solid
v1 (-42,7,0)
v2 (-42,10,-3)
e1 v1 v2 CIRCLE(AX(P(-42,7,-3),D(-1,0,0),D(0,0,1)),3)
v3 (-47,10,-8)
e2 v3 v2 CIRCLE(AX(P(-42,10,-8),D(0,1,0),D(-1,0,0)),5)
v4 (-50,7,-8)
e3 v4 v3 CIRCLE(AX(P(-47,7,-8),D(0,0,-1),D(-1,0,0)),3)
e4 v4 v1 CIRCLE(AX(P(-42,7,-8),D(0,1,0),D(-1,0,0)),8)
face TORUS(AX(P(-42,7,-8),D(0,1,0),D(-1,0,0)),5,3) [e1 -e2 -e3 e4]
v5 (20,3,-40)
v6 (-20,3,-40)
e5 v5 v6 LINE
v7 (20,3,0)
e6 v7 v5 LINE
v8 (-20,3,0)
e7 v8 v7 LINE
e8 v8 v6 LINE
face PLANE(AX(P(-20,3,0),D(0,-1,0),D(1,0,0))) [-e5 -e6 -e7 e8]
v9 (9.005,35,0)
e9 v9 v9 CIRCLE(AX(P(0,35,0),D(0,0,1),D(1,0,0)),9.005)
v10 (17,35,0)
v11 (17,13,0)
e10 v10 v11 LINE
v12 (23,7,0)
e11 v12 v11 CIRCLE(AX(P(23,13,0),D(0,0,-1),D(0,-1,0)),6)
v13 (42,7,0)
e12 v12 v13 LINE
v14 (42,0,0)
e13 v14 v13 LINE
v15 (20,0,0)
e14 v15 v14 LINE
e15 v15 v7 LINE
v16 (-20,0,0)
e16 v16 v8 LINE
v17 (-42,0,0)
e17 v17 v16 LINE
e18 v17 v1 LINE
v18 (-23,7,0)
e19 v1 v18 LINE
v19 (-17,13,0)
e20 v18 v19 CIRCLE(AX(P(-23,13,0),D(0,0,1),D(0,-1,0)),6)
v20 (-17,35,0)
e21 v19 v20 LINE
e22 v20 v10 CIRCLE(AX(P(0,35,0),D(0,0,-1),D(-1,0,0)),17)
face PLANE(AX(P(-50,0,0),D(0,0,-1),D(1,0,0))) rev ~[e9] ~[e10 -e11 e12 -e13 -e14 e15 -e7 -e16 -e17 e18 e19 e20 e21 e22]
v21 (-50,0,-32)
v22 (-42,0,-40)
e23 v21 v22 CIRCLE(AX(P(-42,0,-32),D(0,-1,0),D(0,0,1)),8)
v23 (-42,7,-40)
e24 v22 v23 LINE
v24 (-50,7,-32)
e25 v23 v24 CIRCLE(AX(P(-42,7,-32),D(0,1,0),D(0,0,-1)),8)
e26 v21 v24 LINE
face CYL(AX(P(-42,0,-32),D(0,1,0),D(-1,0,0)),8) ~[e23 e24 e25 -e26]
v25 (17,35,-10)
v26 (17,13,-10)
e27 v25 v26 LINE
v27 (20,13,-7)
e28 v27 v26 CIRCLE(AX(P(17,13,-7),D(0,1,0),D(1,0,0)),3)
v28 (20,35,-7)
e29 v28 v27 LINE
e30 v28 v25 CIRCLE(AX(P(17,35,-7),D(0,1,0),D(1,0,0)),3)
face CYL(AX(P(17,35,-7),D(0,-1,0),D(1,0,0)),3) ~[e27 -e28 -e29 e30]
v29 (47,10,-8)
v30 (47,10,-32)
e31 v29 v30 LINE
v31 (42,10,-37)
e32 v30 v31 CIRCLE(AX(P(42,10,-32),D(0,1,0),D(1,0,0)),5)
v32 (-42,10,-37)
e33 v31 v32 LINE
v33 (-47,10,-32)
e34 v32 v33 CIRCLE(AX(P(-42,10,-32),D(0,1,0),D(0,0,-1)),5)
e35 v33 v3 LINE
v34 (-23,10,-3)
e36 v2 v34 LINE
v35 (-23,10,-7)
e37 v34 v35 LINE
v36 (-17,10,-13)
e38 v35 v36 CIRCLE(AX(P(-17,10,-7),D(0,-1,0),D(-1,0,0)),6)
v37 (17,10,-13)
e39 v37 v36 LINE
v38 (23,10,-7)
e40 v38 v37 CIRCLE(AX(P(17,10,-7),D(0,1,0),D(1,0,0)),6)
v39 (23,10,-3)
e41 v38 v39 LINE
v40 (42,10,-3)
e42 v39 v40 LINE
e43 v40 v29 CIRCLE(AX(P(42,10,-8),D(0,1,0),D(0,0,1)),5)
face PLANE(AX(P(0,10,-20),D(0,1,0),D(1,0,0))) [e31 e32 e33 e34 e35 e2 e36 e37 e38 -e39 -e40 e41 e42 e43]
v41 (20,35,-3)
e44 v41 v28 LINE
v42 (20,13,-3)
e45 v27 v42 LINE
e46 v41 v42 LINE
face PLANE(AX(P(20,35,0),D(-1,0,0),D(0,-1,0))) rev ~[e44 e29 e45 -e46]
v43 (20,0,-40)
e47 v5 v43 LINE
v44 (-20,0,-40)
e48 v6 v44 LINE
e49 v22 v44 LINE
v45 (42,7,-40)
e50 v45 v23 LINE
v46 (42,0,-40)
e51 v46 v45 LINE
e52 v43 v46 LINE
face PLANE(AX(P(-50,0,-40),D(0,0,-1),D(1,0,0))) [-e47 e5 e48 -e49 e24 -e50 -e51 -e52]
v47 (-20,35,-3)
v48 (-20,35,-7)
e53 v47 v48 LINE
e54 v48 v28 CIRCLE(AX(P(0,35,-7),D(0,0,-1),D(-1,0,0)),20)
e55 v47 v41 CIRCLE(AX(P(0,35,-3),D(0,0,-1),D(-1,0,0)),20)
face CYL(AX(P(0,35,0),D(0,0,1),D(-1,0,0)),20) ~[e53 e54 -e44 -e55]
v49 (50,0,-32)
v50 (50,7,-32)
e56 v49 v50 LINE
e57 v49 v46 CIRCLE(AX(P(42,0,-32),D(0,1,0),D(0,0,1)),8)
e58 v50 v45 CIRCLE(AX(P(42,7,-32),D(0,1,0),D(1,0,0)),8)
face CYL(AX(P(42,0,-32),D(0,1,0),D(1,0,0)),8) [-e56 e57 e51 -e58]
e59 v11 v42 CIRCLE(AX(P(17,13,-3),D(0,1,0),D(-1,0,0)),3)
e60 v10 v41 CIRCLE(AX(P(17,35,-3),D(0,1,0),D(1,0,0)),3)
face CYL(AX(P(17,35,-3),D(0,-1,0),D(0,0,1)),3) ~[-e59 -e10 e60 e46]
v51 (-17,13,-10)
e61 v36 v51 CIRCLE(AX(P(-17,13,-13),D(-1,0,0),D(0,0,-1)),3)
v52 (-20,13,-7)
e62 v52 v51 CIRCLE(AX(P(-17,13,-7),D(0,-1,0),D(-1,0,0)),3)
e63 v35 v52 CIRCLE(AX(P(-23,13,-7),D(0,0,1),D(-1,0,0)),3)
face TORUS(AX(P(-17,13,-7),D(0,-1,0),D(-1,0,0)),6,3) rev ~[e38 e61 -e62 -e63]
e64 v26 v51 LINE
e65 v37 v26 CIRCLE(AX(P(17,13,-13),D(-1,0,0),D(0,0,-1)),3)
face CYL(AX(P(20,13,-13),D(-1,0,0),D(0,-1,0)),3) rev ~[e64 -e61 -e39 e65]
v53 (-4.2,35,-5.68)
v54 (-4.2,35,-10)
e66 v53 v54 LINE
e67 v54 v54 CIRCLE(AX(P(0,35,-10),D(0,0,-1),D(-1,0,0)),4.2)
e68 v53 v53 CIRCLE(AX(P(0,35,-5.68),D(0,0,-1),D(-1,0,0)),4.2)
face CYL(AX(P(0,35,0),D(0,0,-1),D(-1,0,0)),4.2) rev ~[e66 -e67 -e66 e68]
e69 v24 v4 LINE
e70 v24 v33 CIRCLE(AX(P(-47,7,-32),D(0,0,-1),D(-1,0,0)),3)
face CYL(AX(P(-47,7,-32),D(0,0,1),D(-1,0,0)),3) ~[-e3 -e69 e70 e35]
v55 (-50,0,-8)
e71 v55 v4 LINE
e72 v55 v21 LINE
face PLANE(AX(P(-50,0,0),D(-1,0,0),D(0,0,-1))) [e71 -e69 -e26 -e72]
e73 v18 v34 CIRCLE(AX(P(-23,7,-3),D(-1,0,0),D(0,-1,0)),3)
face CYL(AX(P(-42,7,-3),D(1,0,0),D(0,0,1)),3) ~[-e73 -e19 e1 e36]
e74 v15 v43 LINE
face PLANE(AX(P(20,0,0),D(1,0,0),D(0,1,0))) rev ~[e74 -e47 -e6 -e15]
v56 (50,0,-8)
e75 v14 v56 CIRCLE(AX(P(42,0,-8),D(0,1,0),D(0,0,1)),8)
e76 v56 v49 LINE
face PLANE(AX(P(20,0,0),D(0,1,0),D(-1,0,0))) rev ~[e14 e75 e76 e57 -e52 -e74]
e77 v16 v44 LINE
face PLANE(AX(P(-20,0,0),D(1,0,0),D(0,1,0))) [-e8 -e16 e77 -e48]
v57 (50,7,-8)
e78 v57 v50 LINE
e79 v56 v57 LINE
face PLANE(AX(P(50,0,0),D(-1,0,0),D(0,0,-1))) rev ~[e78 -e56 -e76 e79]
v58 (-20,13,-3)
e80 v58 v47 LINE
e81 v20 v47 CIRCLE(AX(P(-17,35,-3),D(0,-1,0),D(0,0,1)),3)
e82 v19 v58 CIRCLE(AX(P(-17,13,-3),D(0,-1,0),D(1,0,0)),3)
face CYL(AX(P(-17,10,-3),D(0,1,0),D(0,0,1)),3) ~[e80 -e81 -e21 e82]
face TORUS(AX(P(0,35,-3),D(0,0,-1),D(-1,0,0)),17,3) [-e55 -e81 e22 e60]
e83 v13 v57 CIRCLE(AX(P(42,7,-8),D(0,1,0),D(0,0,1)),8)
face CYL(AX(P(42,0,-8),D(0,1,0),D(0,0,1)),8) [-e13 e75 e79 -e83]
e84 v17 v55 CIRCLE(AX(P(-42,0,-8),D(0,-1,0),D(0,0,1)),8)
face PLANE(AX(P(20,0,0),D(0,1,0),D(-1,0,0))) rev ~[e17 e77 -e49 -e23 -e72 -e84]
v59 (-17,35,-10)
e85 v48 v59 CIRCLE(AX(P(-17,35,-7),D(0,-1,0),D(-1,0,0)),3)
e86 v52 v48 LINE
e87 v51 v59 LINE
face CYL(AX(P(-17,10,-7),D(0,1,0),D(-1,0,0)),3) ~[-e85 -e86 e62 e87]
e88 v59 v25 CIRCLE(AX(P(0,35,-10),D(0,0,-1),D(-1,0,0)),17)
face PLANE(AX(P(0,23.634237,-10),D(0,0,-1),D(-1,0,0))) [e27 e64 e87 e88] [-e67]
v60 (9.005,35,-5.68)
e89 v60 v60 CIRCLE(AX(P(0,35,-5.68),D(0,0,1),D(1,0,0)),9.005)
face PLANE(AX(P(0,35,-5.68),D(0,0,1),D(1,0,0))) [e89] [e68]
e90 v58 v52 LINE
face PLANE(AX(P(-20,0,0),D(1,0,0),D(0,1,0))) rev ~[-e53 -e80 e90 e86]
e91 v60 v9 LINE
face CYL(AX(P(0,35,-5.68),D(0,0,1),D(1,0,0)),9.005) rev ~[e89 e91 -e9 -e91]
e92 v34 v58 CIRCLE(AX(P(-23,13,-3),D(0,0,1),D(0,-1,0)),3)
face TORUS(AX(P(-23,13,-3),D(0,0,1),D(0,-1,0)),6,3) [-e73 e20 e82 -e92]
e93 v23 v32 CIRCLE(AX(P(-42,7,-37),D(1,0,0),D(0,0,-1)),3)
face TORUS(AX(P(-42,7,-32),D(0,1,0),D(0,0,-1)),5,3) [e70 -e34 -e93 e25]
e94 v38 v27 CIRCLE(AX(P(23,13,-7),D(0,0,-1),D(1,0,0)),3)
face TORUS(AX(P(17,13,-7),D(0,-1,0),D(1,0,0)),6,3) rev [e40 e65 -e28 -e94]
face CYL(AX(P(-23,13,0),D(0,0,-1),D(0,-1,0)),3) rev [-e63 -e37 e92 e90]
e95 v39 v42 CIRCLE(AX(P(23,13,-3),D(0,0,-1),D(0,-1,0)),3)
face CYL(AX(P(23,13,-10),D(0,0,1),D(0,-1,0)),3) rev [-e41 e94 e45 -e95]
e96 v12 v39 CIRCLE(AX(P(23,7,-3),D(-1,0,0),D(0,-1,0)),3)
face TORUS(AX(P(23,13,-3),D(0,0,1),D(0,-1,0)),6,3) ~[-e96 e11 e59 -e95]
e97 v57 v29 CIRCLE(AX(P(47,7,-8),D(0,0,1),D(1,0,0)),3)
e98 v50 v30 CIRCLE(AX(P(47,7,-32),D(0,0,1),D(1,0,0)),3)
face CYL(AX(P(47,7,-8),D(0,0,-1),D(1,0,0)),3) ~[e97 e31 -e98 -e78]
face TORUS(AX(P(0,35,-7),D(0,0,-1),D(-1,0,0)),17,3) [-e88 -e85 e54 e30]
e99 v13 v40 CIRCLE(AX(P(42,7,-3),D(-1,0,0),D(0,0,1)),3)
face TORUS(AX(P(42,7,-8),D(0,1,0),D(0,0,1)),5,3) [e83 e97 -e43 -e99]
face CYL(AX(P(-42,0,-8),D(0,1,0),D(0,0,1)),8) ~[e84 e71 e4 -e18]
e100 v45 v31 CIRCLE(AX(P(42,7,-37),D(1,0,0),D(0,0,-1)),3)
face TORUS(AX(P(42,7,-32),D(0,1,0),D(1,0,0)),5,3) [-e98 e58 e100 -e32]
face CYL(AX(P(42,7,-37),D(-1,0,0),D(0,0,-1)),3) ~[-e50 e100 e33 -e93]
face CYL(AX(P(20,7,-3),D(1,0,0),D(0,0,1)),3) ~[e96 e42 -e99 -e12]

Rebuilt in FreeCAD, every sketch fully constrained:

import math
import FreeCAD as App
import Part
import Sketcher

V = App.Vector


def edges_at(feature, points):
    """Names of the edges that pass closest to the given points."""
    edges = feature.Shape.Edges
    near = lambda p: min(range(len(edges)), key=lambda i: edges[i].distToShape(Part.Vertex(*p))[0])
    return sorted({f"Edge{near(p) + 1}" for p in points})

doc = App.newDocument("Part")
params = doc.addObject("Spreadsheet::Sheet", "Params")
for row, (alias, value) in enumerate([
    ("sketch1_width", "100 mm"),
    ("sketch1_height", "40 mm"),
    ("pad1_length", "10 mm"),
    ("sketch2_radius", "20 mm"),
    ("sketch2_height", "35 mm"),
    ("pad2_length", "10 mm"),
    ("sketch3_width", "40 mm"),
    ("sketch3_height", "3 mm"),
    ("sketch4_diameter", "8.4 mm"),
    ("hole_diameter", "8.4 mm"),
    ("hole_cbore_diameter", "18.01 mm"),
    ("hole_cbore_depth", "5.68 mm"),
    ("fillet_radius", "8 mm"),
    ("fillet2_radius", "3 mm"),
], start=1):
    params.set(f"A{row}", alias)
    params.set(f"B{row}", "=" + value)
    params.setAlias(f"B{row}", alias)

body = doc.addObject("PartDesign::Body", "Body")

sketch1 = doc.addObject("Sketcher::SketchObject", "Sketch")
body.addObject(sketch1)
sketch1.AttachmentSupport = (doc.XZ_Plane, [""])
sketch1.MapMode = "FlatFace"
sketch1.addGeometry(Part.LineSegment(V(-50, -40, 0), V(-50, 0, 0)), False)
sketch1.addGeometry(Part.LineSegment(V(-50, 0, 0), V(50, 0, 0)), False)
sketch1.addGeometry(Part.LineSegment(V(50, 0, 0), V(50, -40, 0)), False)
sketch1.addGeometry(Part.LineSegment(V(50, -40, 0), V(-50, -40, 0)), False)
sketch1.addConstraint(Sketcher.Constraint("Coincident", 0, 2, 1, 1))
sketch1.addConstraint(Sketcher.Constraint("Coincident", 1, 2, 2, 1))
sketch1.addConstraint(Sketcher.Constraint("Coincident", 2, 2, 3, 1))
sketch1.addConstraint(Sketcher.Constraint("Coincident", 3, 2, 0, 1))
sketch1.addConstraint(Sketcher.Constraint("Vertical", 0))
sketch1.addConstraint(Sketcher.Constraint("Horizontal", 1))
sketch1.addConstraint(Sketcher.Constraint("Vertical", 2))
sketch1.addConstraint(Sketcher.Constraint("Horizontal", 3))
sketch1.addConstraint(Sketcher.Constraint("Symmetric", 0, 2, 1, 2, -1, 1))
sketch1.addConstraint(Sketcher.Constraint("DistanceX", 1, 1, 1, 2, 100.0))
sketch1.addConstraint(Sketcher.Constraint("DistanceY", 0, 1, 0, 2, 40.0))
sketch1.setExpression("Constraints[9]", "Params.sketch1_width")
sketch1.setExpression("Constraints[10]", "Params.sketch1_height")
pad1 = doc.addObject("PartDesign::Pad", "Pad")
body.addObject(pad1)
pad1.Profile = sketch1
pad1.setExpression("Length", "Params.pad1_length")
pad1.Reversed = True

sketch2 = doc.addObject("Sketcher::SketchObject", "Sketch001")
body.addObject(sketch2)
sketch2.AttachmentSupport = (doc.XY_Plane, [""])
sketch2.MapMode = "FlatFace"
sketch2.addGeometry(Part.LineSegment(V(-20, 35, 0), V(-20, 0, 0)), False)
sketch2.addGeometry(Part.LineSegment(V(-20, 0, 0), V(20, 0, 0)), False)
sketch2.addGeometry(Part.LineSegment(V(20, 0, 0), V(20, 35, 0)), False)
sketch2.addGeometry(Part.ArcOfCircle(Part.Circle(V(0, 35, 0), V(0, 0, 1), 20), math.radians(0), math.radians(180)), False)
sketch2.addConstraint(Sketcher.Constraint("Coincident", 0, 2, 1, 1))
sketch2.addConstraint(Sketcher.Constraint("Coincident", 1, 2, 2, 1))
sketch2.addConstraint(Sketcher.Constraint("Tangent", 2, 2, 3, 1))
sketch2.addConstraint(Sketcher.Constraint("Tangent", 3, 2, 0, 1))
sketch2.addConstraint(Sketcher.Constraint("Vertical", 0))
sketch2.addConstraint(Sketcher.Constraint("Horizontal", 1))
sketch2.addConstraint(Sketcher.Constraint("Vertical", 2))
sketch2.addConstraint(Sketcher.Constraint("Symmetric", 0, 2, 1, 2, -1, 1))
sketch2.addConstraint(Sketcher.Constraint("Radius", 3, 20.0))
sketch2.addConstraint(Sketcher.Constraint("DistanceY", 0, 2, 0, 1, 35.0))
sketch2.setExpression("Constraints[8]", "Params.sketch2_radius")
sketch2.setExpression("Constraints[9]", "Params.sketch2_height")
pad2 = doc.addObject("PartDesign::Pad", "Pad001")
body.addObject(pad2)
pad2.Profile = sketch2
pad2.setExpression("Length", "Params.pad2_length")
pad2.Reversed = True

sketch3 = doc.addObject("Sketcher::SketchObject", "Sketch002")
body.addObject(sketch3)
sketch3.AttachmentSupport = (doc.XY_Plane, [""])
sketch3.MapMode = "FlatFace"
sketch3.addGeometry(Part.LineSegment(V(-20, 3, 0), V(-20, 0, 0)), False)
sketch3.addGeometry(Part.LineSegment(V(-20, 0, 0), V(20, 0, 0)), False)
sketch3.addGeometry(Part.LineSegment(V(20, 0, 0), V(20, 3, 0)), False)
sketch3.addGeometry(Part.LineSegment(V(20, 3, 0), V(-20, 3, 0)), False)
sketch3.addConstraint(Sketcher.Constraint("Coincident", 0, 2, 1, 1))
sketch3.addConstraint(Sketcher.Constraint("Coincident", 1, 2, 2, 1))
sketch3.addConstraint(Sketcher.Constraint("Coincident", 2, 2, 3, 1))
sketch3.addConstraint(Sketcher.Constraint("Coincident", 3, 2, 0, 1))
sketch3.addConstraint(Sketcher.Constraint("Vertical", 0))
sketch3.addConstraint(Sketcher.Constraint("Horizontal", 1))
sketch3.addConstraint(Sketcher.Constraint("Vertical", 2))
sketch3.addConstraint(Sketcher.Constraint("Horizontal", 3))
sketch3.addConstraint(Sketcher.Constraint("Symmetric", 0, 2, 1, 2, -1, 1))
sketch3.addConstraint(Sketcher.Constraint("DistanceX", 1, 1, 1, 2, 40.0))
sketch3.addConstraint(Sketcher.Constraint("DistanceY", 0, 2, 0, 1, 3.0))
sketch3.setExpression("Constraints[9]", "Params.sketch3_width")
sketch3.setExpression("Constraints[10]", "Params.sketch3_height")
pocket1 = doc.addObject("PartDesign::Pocket", "Pocket")
body.addObject(pocket1)
pocket1.Profile = sketch3
pocket1.Type = "ThroughAll"

sketch4 = doc.addObject("Sketcher::SketchObject", "Sketch003")
body.addObject(sketch4)
sketch4.AttachmentSupport = (doc.XY_Plane, [""])
sketch4.MapMode = "FlatFace"
sketch4.addGeometry(Part.Circle(V(0, 35, 0), V(0, 0, 1), 4.2), False)
sketch4.addConstraint(Sketcher.Constraint("PointOnObject", 0, 3, -2))
sketch4.addConstraint(Sketcher.Constraint("Diameter", 0, 8.4))
sketch4.addConstraint(Sketcher.Constraint("DistanceY", -1, 1, 0, 3, 35.0))
sketch4.setExpression("Constraints[1]", "Params.sketch4_diameter")
doc.recompute()
hole = doc.addObject("PartDesign::Hole", "Hole")
body.addObject(hole)
hole.Profile = sketch4
hole.ThreadType = "None"
hole.setExpression("Diameter", "Params.hole_diameter")
hole.DepthType = "ThroughAll"
hole.HoleCutType = "Counterbore"
hole.setExpression("HoleCutDiameter", "Params.hole_cbore_diameter")
hole.setExpression("HoleCutDepth", "Params.hole_cbore_depth")
doc.recompute()

fillet = doc.addObject("PartDesign::Fillet", "Fillet")
body.addObject(fillet)
fillet.Base = (hole, edges_at(hole, [
    (-50, 5, -40),
    (50, 5, -40),
    (50, 5, 0),
    (-50, 5, 0),
]))
fillet.setExpression("Radius", "Params.fillet_radius")
doc.recompute()

fillet2 = doc.addObject("PartDesign::Fillet", "Fillet001")
body.addObject(fillet2)
fillet2.Base = (fillet, edges_at(fillet, [
    (31, 10, 0),
    (-20, 22.5, -10),
    (20, 22.5, -10),
    (-20, 22.5, 0),
    (20, 22.5, 0),
    (0, 55, 0),
    (-20, 10, -5),
    (0, 55, -10),
    (20, 10, -5),
    (0, 10, -10),
    (-31, 10, 0),
    (-50, 10, -20),
    (50, 10, -20),
    (0, 10, -40),
    (47.657, 10, -37.657),
    (47.657, 10, -2.343),
    (-47.657, 10, -37.657),
    (-47.657, 10, -2.343),
]))
fillet2.setExpression("Radius", "Params.fillet2_radius")

doc.recompute()
